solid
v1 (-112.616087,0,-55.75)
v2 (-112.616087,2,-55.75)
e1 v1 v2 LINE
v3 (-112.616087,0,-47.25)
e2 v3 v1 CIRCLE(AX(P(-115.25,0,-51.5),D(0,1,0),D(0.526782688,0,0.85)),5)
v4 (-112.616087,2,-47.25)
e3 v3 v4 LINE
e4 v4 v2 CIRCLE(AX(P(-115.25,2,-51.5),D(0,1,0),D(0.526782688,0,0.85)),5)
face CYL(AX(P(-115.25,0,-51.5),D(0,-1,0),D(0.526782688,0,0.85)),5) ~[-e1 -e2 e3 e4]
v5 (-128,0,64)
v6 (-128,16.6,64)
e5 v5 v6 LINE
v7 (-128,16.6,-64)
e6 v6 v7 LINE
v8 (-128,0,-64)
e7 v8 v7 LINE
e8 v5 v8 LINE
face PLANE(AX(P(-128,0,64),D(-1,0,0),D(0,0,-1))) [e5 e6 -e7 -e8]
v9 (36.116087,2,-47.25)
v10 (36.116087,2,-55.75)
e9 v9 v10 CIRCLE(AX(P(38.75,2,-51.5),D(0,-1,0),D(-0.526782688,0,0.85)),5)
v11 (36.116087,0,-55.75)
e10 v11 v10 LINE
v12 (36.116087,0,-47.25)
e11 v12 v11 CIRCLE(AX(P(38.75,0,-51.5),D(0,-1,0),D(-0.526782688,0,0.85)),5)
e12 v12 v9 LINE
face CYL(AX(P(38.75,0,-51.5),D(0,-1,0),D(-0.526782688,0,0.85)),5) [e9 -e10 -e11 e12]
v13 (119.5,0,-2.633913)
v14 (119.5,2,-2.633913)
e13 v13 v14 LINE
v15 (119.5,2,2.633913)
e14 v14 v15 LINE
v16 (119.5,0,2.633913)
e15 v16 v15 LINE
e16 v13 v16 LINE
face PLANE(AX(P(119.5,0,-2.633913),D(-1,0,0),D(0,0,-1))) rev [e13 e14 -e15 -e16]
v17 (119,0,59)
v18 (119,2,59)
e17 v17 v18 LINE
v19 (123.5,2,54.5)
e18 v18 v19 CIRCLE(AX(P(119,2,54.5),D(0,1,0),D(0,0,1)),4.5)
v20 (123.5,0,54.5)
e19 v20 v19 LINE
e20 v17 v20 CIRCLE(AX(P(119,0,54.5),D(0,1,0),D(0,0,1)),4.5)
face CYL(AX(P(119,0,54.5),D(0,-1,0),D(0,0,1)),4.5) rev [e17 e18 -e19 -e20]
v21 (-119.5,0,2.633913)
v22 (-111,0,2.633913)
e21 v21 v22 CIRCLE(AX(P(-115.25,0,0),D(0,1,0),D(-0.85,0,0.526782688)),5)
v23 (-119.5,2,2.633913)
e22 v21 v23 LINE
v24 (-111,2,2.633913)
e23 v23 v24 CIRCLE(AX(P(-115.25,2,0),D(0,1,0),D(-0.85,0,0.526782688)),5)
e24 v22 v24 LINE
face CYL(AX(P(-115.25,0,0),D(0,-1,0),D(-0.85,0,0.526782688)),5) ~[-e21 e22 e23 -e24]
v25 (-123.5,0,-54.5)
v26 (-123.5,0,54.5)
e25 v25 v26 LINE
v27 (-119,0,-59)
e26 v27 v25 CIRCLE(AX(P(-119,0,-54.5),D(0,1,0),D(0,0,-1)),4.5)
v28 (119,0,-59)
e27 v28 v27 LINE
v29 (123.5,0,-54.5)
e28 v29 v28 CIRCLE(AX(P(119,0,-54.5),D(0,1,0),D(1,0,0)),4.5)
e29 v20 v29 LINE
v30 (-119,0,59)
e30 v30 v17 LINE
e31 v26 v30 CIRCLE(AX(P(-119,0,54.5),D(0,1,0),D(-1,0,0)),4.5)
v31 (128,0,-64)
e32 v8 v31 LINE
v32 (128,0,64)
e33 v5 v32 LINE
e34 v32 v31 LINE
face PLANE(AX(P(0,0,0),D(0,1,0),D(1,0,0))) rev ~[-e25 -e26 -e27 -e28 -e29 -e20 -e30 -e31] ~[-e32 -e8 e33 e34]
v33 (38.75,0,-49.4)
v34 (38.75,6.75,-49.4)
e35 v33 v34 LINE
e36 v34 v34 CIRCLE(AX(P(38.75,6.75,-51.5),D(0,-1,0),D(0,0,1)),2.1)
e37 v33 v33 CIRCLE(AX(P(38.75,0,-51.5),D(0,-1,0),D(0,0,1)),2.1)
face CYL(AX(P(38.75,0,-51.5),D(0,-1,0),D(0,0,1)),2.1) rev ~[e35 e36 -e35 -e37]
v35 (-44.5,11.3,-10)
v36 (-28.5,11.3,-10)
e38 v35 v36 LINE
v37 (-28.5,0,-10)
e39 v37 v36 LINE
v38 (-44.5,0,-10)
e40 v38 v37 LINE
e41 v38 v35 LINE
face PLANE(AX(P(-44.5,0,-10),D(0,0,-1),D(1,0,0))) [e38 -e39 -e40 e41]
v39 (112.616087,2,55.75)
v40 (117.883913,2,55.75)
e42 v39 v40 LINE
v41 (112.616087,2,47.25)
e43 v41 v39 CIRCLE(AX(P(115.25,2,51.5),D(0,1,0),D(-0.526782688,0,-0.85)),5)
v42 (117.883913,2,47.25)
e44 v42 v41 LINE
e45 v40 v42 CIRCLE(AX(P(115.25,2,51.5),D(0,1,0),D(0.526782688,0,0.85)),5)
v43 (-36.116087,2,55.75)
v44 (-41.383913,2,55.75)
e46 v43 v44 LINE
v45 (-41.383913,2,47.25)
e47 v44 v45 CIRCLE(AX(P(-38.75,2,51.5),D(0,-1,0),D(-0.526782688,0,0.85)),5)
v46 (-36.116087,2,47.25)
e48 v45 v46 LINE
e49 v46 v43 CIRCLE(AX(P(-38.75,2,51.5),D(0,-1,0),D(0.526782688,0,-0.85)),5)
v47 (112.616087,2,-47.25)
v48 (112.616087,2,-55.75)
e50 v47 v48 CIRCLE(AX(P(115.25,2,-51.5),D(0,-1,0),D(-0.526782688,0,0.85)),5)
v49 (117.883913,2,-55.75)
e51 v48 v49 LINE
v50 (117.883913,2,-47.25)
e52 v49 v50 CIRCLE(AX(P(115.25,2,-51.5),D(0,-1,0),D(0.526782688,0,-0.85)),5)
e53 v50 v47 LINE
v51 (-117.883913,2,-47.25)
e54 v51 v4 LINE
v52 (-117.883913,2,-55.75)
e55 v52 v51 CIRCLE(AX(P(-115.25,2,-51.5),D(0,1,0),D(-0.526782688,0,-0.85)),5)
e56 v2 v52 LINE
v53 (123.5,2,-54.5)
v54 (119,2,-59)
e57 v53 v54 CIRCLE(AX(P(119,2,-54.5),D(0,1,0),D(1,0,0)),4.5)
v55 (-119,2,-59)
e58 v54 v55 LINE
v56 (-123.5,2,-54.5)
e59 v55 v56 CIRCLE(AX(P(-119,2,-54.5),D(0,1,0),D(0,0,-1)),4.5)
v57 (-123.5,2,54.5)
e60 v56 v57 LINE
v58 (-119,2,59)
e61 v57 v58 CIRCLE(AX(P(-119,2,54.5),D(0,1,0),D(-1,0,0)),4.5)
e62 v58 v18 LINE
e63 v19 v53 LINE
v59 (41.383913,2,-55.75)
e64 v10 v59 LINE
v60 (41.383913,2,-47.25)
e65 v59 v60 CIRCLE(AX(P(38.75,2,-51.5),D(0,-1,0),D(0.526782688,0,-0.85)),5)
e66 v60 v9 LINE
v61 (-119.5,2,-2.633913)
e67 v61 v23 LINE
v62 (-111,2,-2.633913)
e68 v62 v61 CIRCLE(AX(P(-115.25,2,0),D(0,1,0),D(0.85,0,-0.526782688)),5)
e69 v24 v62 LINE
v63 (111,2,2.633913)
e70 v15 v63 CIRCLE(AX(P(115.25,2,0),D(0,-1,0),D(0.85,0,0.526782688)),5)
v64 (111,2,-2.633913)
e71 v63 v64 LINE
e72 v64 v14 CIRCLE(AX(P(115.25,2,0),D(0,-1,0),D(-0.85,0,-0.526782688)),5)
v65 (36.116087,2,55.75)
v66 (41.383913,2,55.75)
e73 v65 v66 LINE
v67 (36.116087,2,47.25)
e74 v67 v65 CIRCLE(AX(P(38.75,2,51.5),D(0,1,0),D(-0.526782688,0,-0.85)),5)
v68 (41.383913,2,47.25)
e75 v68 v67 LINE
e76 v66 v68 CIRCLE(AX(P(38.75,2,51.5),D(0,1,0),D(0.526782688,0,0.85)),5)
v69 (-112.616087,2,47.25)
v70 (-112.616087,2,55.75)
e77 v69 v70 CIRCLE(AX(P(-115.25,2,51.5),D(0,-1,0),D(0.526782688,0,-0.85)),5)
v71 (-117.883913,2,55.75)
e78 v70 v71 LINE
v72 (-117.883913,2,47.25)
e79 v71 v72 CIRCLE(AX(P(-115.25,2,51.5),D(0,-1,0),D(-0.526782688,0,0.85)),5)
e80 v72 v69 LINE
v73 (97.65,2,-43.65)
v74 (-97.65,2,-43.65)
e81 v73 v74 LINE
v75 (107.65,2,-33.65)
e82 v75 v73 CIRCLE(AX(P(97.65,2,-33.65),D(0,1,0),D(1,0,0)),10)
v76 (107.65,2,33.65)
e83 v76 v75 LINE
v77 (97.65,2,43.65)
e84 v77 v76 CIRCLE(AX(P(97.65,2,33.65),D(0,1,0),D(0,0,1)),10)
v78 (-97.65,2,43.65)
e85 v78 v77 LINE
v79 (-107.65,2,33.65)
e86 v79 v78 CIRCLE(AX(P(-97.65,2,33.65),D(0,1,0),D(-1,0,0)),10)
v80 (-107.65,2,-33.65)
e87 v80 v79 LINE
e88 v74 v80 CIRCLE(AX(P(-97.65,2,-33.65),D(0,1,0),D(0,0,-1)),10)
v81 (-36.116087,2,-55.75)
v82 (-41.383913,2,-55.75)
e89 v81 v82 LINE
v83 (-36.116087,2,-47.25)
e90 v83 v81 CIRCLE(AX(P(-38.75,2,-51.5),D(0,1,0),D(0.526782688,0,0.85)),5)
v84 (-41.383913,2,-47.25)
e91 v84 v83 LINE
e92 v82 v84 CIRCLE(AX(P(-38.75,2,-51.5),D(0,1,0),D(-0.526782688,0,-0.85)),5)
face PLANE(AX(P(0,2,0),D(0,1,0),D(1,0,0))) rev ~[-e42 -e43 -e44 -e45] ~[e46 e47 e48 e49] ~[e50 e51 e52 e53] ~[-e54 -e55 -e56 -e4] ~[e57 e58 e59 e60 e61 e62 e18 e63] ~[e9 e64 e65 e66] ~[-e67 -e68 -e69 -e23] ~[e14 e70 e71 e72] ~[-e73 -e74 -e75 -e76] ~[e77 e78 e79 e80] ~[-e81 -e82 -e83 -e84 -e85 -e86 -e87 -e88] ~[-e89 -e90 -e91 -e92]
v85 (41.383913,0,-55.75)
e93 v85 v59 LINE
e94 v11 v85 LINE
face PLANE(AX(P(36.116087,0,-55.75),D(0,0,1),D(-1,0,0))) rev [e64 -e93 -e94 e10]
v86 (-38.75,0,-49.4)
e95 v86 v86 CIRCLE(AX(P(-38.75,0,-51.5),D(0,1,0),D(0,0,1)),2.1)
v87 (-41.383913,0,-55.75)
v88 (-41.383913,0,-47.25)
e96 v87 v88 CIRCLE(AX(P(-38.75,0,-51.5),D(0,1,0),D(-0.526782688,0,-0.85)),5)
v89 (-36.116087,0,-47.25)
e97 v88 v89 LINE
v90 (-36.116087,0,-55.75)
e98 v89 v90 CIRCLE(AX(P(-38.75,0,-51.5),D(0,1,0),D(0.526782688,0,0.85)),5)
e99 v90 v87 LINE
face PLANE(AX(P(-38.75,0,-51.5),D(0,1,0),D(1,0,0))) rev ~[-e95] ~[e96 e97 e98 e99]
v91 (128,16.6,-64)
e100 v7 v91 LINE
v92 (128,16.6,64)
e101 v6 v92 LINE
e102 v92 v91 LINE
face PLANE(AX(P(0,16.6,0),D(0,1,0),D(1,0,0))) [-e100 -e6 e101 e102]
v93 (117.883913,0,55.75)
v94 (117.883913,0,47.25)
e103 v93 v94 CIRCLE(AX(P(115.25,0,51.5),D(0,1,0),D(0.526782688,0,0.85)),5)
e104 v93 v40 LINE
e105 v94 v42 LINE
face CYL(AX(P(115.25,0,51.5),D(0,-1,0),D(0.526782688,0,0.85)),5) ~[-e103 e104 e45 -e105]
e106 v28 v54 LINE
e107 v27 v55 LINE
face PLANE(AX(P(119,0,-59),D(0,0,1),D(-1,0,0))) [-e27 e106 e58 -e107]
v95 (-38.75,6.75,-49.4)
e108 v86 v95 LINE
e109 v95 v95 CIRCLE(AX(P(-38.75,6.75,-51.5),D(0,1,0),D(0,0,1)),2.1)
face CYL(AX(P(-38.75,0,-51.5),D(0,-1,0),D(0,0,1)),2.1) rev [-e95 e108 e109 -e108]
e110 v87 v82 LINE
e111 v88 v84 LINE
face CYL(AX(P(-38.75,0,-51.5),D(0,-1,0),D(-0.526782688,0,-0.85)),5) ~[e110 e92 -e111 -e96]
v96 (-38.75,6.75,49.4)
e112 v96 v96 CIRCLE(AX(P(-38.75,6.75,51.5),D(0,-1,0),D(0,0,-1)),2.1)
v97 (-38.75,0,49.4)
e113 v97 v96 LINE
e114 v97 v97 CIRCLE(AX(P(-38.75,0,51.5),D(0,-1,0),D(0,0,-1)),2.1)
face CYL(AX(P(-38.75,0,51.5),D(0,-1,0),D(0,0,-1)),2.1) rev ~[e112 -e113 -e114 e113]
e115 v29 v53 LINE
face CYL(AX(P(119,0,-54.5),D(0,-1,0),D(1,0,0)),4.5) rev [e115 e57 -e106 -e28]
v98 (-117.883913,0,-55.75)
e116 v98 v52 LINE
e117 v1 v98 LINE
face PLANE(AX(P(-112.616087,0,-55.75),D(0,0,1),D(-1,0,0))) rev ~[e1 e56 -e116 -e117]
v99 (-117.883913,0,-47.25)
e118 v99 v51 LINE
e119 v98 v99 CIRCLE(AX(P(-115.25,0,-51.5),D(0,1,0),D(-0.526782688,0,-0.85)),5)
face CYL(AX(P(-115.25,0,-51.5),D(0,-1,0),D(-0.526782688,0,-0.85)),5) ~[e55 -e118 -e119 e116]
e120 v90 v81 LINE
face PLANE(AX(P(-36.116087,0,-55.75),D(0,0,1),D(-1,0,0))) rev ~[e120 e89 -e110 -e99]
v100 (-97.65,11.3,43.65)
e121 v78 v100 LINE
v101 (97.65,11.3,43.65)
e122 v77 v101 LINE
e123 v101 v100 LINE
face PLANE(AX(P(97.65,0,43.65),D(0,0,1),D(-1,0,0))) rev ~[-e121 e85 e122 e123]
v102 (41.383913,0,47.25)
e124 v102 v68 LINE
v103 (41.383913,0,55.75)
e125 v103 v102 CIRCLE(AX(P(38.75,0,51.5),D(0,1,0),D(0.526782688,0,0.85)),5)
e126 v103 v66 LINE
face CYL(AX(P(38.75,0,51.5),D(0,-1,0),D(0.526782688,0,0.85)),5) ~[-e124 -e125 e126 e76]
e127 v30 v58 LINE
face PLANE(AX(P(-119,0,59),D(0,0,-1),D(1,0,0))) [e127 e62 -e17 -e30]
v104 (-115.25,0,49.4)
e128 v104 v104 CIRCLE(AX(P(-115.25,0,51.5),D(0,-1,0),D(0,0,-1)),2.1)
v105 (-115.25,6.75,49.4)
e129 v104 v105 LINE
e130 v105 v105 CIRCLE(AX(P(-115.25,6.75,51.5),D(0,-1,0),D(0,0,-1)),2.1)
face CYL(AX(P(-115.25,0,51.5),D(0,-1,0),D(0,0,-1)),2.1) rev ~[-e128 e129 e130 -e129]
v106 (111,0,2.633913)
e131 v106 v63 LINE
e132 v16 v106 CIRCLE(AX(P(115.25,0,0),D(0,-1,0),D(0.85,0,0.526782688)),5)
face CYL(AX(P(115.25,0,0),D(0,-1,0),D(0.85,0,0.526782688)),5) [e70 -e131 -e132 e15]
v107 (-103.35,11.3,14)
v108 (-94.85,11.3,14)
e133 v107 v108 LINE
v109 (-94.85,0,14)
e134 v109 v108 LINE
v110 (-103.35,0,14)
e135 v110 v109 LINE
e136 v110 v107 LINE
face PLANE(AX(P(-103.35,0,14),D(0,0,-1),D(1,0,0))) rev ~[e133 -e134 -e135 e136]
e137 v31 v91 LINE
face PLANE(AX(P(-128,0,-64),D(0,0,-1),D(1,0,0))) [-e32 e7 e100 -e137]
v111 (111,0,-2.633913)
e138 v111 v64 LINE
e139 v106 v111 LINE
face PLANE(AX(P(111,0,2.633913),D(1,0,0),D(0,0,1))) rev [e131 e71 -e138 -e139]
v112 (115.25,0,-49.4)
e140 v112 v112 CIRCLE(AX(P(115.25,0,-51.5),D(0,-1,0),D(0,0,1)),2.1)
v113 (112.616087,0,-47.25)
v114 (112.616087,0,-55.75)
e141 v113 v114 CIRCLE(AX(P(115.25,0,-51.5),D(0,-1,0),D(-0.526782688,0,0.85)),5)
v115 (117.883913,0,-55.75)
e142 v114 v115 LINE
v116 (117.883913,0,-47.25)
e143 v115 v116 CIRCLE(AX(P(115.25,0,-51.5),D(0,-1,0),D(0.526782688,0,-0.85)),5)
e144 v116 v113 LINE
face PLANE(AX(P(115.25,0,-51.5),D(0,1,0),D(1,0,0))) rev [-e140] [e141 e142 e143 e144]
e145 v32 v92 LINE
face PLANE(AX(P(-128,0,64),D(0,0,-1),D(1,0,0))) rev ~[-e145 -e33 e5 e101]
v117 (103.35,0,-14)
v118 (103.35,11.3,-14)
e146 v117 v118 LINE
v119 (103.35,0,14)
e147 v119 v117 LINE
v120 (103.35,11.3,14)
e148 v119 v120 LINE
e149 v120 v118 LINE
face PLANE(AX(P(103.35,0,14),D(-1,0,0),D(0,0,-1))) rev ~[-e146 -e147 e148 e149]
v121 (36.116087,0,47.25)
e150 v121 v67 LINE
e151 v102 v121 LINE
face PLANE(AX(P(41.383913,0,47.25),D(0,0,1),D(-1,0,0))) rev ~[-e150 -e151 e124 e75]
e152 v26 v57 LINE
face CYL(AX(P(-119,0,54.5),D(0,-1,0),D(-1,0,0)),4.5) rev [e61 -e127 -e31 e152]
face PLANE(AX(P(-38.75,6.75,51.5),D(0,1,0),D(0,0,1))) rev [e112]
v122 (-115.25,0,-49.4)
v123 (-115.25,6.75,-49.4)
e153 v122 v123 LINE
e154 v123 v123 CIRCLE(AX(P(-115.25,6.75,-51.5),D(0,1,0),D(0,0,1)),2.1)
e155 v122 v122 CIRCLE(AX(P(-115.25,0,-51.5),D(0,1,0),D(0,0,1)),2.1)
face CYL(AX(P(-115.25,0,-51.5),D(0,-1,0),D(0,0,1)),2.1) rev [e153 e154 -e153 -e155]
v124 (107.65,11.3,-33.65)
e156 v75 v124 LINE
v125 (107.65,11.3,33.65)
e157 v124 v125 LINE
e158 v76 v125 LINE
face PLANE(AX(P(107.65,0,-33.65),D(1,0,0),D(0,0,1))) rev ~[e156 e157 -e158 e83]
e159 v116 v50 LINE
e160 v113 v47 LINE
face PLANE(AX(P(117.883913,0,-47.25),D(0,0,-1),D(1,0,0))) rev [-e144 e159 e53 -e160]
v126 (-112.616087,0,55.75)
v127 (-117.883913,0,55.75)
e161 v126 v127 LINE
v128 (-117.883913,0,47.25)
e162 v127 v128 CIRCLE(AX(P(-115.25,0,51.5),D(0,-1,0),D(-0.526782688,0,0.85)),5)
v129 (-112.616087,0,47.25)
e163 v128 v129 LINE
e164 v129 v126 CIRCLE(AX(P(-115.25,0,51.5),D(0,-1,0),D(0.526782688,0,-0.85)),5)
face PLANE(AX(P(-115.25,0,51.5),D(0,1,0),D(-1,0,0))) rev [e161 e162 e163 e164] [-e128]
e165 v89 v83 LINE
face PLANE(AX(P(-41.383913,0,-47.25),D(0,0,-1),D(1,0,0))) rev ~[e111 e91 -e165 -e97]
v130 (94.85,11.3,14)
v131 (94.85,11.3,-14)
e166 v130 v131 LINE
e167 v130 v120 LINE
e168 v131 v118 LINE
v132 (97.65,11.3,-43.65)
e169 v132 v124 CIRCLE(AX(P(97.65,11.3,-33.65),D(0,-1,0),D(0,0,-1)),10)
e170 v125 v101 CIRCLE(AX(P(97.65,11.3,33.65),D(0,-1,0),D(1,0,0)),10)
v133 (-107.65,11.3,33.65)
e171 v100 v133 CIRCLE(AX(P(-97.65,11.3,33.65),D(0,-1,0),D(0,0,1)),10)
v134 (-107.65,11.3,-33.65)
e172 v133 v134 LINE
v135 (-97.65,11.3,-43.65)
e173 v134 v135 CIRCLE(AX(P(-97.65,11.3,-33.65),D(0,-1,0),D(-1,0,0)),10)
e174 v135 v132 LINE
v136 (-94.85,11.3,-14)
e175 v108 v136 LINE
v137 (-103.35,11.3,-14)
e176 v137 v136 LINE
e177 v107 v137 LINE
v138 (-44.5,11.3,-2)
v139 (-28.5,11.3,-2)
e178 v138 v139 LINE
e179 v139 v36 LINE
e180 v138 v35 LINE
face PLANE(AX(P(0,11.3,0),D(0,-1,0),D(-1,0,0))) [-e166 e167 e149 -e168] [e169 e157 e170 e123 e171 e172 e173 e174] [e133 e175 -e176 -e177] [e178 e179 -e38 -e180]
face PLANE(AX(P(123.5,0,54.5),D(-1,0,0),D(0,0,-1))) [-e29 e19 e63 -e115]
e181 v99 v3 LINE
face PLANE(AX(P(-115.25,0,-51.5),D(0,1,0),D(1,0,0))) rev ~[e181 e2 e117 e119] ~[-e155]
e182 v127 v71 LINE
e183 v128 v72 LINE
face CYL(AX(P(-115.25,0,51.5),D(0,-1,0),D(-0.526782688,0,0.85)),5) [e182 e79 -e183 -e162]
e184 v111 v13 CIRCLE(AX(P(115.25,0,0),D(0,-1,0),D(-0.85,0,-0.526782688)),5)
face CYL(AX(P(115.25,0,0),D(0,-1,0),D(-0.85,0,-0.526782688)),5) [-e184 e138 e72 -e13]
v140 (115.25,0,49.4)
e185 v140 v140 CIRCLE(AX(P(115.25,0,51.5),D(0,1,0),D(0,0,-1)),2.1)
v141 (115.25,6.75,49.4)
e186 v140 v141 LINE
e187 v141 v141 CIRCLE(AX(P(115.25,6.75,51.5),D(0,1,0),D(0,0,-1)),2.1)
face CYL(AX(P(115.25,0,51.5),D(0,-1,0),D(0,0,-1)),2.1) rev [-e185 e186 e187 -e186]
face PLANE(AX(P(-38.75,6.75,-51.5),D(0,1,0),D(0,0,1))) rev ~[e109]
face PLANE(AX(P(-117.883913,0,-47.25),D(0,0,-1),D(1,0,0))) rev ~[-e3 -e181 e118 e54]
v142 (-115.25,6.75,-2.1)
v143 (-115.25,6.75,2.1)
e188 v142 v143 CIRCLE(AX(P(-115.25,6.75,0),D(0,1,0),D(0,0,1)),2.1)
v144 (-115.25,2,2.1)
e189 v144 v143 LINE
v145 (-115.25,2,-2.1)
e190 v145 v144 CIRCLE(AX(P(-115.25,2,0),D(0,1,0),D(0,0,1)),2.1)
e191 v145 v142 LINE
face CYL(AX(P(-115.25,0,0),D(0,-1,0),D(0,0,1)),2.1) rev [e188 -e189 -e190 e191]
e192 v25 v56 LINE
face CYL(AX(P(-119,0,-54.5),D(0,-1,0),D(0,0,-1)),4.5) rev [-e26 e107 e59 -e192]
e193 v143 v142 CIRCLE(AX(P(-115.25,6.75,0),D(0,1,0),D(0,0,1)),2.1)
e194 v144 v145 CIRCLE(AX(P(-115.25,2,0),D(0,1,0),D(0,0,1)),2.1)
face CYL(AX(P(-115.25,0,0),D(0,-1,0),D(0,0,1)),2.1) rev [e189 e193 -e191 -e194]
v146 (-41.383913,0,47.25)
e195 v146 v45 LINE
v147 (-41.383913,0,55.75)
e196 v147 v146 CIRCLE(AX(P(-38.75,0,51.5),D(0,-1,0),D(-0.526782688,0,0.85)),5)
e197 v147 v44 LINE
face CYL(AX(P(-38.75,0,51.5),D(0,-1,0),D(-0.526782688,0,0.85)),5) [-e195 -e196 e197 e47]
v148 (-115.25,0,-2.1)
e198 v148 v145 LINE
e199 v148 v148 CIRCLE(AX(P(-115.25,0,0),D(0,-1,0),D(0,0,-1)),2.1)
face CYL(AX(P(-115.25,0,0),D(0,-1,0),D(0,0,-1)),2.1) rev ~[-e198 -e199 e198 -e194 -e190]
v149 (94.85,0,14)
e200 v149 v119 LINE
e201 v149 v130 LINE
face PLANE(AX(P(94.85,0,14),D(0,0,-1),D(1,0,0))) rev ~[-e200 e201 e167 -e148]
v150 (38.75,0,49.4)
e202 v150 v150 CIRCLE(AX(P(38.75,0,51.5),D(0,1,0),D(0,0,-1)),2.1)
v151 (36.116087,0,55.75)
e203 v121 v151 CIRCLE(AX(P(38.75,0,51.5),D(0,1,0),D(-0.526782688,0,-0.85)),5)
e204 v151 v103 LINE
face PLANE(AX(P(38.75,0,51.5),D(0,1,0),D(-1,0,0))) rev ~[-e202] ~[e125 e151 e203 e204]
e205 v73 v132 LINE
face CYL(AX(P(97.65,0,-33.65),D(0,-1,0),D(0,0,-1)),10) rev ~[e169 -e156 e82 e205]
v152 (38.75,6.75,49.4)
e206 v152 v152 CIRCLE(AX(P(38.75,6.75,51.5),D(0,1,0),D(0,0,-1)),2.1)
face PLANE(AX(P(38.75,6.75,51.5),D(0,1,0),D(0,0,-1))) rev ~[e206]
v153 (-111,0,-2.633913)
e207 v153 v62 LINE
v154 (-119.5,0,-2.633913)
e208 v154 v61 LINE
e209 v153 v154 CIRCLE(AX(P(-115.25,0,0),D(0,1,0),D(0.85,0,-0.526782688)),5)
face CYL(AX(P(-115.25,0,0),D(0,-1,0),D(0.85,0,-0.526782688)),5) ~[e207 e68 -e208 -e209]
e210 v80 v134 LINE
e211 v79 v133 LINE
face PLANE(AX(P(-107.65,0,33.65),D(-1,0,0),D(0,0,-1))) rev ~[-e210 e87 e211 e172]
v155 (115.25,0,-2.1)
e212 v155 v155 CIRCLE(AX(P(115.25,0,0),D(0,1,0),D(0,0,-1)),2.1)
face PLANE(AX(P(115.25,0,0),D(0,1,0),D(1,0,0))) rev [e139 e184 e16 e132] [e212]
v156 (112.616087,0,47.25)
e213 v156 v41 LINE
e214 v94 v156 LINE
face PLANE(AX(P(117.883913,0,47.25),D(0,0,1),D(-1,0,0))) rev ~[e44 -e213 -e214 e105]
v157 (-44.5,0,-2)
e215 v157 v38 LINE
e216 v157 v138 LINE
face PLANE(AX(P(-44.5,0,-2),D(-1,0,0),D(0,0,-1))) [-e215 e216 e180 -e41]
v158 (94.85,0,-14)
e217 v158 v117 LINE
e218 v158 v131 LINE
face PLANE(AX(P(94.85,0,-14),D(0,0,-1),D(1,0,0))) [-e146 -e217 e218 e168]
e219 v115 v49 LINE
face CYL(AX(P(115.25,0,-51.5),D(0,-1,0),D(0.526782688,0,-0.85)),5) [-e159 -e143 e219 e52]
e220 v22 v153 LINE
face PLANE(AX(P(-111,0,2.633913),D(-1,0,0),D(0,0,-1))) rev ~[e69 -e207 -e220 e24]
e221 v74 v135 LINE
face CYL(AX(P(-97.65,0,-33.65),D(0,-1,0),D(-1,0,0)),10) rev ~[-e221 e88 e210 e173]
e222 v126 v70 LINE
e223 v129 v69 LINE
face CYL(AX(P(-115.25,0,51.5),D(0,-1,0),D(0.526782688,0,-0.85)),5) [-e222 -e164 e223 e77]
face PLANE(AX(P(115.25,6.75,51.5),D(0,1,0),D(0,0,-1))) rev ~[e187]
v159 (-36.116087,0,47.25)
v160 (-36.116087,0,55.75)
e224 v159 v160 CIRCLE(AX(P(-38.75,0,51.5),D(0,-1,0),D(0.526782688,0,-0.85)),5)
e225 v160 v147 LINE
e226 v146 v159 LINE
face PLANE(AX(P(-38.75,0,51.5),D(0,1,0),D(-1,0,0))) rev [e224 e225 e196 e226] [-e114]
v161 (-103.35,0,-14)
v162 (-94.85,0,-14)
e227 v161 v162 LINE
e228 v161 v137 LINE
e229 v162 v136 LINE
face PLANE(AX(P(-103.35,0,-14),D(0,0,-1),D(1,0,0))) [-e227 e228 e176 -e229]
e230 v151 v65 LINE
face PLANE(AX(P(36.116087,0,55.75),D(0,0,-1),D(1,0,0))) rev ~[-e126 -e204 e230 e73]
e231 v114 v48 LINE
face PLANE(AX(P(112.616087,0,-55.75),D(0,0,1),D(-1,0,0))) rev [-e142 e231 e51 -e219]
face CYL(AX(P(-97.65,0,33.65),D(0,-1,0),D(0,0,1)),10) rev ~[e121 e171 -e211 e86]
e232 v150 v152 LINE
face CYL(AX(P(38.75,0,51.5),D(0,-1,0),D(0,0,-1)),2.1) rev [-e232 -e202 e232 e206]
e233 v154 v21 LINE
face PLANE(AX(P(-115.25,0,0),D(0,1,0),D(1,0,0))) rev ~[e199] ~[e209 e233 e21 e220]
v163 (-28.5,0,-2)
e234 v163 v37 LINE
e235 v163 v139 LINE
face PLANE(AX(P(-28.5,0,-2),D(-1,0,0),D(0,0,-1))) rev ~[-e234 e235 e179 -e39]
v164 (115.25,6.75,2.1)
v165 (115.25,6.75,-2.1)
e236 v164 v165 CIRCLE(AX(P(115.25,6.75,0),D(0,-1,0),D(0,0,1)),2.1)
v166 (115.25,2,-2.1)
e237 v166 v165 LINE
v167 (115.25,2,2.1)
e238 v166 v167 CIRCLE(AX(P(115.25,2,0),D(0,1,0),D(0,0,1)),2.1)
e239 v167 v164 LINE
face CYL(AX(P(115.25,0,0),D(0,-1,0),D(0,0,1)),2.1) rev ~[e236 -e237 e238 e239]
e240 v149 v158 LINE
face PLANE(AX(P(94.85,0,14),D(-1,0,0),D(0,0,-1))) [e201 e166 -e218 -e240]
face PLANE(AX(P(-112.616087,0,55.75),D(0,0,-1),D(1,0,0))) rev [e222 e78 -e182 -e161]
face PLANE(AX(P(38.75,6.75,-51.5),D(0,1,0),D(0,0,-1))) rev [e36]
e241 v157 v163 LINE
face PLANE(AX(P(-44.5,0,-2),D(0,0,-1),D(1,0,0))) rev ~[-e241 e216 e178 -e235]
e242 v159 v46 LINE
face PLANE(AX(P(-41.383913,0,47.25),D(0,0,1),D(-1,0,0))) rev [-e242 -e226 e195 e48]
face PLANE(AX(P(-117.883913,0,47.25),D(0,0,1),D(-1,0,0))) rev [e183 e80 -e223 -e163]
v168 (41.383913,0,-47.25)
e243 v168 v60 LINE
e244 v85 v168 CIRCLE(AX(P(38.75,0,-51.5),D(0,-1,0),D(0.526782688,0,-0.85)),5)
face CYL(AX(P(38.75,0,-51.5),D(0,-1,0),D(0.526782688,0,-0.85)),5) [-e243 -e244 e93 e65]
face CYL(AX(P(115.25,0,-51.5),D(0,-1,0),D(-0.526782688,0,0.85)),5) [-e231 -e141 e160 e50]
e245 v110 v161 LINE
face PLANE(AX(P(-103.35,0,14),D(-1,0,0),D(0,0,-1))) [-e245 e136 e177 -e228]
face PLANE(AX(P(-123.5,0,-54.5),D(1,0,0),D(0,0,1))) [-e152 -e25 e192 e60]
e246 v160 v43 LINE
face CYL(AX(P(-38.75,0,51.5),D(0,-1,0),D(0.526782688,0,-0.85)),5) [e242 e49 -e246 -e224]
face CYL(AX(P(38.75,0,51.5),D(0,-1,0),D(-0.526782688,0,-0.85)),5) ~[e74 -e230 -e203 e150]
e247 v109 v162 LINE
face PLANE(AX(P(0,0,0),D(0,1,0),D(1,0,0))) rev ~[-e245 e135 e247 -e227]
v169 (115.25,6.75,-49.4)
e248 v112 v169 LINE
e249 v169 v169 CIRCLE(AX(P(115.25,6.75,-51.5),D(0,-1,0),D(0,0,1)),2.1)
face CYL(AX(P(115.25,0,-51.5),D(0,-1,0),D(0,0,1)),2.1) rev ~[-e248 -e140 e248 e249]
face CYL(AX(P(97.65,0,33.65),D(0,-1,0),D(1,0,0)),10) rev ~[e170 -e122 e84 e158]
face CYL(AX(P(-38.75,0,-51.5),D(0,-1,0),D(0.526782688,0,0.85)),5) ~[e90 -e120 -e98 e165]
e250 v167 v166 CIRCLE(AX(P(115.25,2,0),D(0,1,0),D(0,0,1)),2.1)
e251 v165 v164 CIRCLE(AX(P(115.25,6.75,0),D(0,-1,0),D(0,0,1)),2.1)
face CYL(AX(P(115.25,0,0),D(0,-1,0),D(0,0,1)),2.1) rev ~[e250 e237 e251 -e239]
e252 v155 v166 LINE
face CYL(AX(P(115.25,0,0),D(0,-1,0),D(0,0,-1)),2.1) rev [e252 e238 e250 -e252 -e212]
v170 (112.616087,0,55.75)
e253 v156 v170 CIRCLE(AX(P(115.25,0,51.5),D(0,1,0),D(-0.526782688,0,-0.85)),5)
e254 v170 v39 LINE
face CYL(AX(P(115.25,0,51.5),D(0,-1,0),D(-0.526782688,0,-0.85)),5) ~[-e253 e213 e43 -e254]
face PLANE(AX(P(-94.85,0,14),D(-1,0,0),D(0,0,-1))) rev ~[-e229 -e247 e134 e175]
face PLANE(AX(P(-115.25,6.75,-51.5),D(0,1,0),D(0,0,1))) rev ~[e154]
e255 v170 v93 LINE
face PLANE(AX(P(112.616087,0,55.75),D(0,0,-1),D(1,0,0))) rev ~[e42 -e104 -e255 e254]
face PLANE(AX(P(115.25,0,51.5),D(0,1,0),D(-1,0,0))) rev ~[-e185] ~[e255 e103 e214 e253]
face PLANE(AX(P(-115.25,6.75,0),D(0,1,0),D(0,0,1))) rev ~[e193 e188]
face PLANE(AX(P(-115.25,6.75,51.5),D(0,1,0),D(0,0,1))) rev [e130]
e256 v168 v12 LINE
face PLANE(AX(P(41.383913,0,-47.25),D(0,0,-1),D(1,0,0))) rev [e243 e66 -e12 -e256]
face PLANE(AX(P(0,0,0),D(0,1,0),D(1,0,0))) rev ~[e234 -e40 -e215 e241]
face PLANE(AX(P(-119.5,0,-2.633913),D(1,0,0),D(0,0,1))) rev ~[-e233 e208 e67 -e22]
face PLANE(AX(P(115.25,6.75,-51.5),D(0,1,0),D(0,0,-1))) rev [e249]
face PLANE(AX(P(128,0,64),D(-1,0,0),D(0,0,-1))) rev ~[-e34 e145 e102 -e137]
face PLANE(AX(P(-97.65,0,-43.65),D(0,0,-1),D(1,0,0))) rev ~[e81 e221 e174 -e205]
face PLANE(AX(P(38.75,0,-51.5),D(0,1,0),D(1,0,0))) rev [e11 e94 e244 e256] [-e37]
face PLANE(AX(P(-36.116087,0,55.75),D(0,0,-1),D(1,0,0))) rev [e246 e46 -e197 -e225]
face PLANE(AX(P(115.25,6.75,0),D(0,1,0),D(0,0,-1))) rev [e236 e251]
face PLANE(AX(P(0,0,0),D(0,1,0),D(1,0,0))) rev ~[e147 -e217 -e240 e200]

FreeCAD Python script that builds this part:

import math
import FreeCAD as App
import Part
import Sketcher
Q = App.Units.Quantity


def add_polygon(sketch, points):
    """Adds a closed chain of lines whose ends are joined by coincident constraints."""
    first, n = sketch.GeometryCount, len(points)
    for a, b in zip(points, points[1:] + points[:1]):
        sketch.addGeometry(Part.LineSegment(App.Vector(*a, 0), App.Vector(*b, 0)), False)
    for i in range(n):
        sketch.addConstraint(Sketcher.Constraint("Coincident", first + i, 2, first + (i + 1) % n, 1))

doc = App.newDocument("Part")
body = doc.addObject("PartDesign::Body", "Body")

# Sketch on XZ plane
sketch1 = doc.addObject("Sketcher::SketchObject", "Sketch")
body.addObject(sketch1)
sketch1.AttachmentSupport = (doc.XZ_Plane, [""])
sketch1.MapMode = "FlatFace"
add_polygon(sketch1, [(-128, -64), (-128, 64), (128, 64), (128, -64)])  # lines 0-3
sketch1.addConstraint(Sketcher.Constraint("Vertical", 0))
sketch1.addConstraint(Sketcher.Constraint("Horizontal", 1))
sketch1.addConstraint(Sketcher.Constraint("Vertical", 2))
sketch1.addConstraint(Sketcher.Constraint("Horizontal", 3))
sketch1.addConstraint(Sketcher.Constraint("Symmetric", 0, 2, 2, 2, -1, 1))
sketch1.addConstraint(Sketcher.Constraint("DistanceX", 1, 1, 1, 2, Q("256 mm")))
sketch1.addConstraint(Sketcher.Constraint("DistanceY", 0, 1, 0, 2, Q("128 mm")))
pad1 = doc.addObject("PartDesign::Pad", "Pad")
body.addObject(pad1)
pad1.Profile = sketch1
pad1.Length = 16.6
pad1.Reversed = True

# Sketch on XZ plane
sketch2 = doc.addObject("Sketcher::SketchObject", "Sketch001")
body.addObject(sketch2)
sketch2.AttachmentSupport = (doc.XZ_Plane, [""])
sketch2.MapMode = "FlatFace"
sketch2.addGeometry(Part.LineSegment(App.Vector(-98, 44, 0), App.Vector(98, 44, 0)), False)  # 0
sketch2.addGeometry(Part.ArcOfCircle(Part.Circle(App.Vector(98, 34, 0), App.Vector(0, 0, 1), 10), math.radians(0), math.radians(90)), False)  # 1
sketch2.addGeometry(Part.LineSegment(App.Vector(108, 34, 0), App.Vector(108, -34, 0)), False)  # 2
sketch2.addGeometry(Part.ArcOfCircle(Part.Circle(App.Vector(98, -34, 0), App.Vector(0, 0, 1), 10), math.radians(-90), math.radians(0)), False)  # 3
sketch2.addGeometry(Part.LineSegment(App.Vector(98, -44, 0), App.Vector(-98, -44, 0)), False)  # 4
sketch2.addGeometry(Part.ArcOfCircle(Part.Circle(App.Vector(-98, -34, 0), App.Vector(0, 0, 1), 10), math.radians(180), math.radians(270)), False)  # 5
sketch2.addGeometry(Part.LineSegment(App.Vector(-108, -34, 0), App.Vector(-108, 34, 0)), False)  # 6
sketch2.addGeometry(Part.ArcOfCircle(Part.Circle(App.Vector(-98, 34, 0), App.Vector(0, 0, 1), 10), math.radians(90), math.radians(180)), False)  # 7
add_polygon(sketch2, [(95, 14), (95, -14), (103, -14), (103, 14)])  # lines 8-11
add_polygon(sketch2, [(-44, -2), (-44, -10), (-28, -10), (-28, -2)])  # lines 12-15
add_polygon(sketch2, [(-103, 14), (-103, -14), (-95, -14), (-95, 14)])  # lines 16-19
sketch2.addConstraint(Sketcher.Constraint("Tangent", 0, 2, 1, 2))
sketch2.addConstraint(Sketcher.Constraint("Tangent", 1, 1, 2, 1))
sketch2.addConstraint(Sketcher.Constraint("Tangent", 2, 2, 3, 2))
sketch2.addConstraint(Sketcher.Constraint("Tangent", 3, 1, 4, 1))
sketch2.addConstraint(Sketcher.Constraint("Tangent", 4, 2, 5, 2))
sketch2.addConstraint(Sketcher.Constraint("Tangent", 5, 1, 6, 1))
sketch2.addConstraint(Sketcher.Constraint("Tangent", 6, 2, 7, 2))
sketch2.addConstraint(Sketcher.Constraint("Tangent", 7, 1, 0, 1))
sketch2.addConstraint(Sketcher.Constraint("Horizontal", 0))
sketch2.addConstraint(Sketcher.Constraint("Vertical", 2))
sketch2.addConstraint(Sketcher.Constraint("Horizontal", 4))
sketch2.addConstraint(Sketcher.Constraint("Vertical", 6))
sketch2.addConstraint(Sketcher.Constraint("Vertical", 8))
sketch2.addConstraint(Sketcher.Constraint("Horizontal", 9))
sketch2.addConstraint(Sketcher.Constraint("Vertical", 10))
sketch2.addConstraint(Sketcher.Constraint("Horizontal", 11))
sketch2.addConstraint(Sketcher.Constraint("Vertical", 12))
sketch2.addConstraint(Sketcher.Constraint("Horizontal", 13))
sketch2.addConstraint(Sketcher.Constraint("Vertical", 14))
sketch2.addConstraint(Sketcher.Constraint("Horizontal", 15))
sketch2.addConstraint(Sketcher.Constraint("Vertical", 16))
sketch2.addConstraint(Sketcher.Constraint("Horizontal", 17))
sketch2.addConstraint(Sketcher.Constraint("Vertical", 18))
sketch2.addConstraint(Sketcher.Constraint("Horizontal", 19))
sketch2.addConstraint(Sketcher.Constraint("Equal", 1, 3))
sketch2.addConstraint(Sketcher.Constraint("Equal", 3, 5))
sketch2.addConstraint(Sketcher.Constraint("Equal", 5, 7))
sketch2.addConstraint(Sketcher.Constraint("Symmetric", 1, 3, 5, 3, -1, 1))
sketch2.addConstraint(Sketcher.Constraint("Symmetric", 10, 2, 16, 2, -1, 1))
sketch2.addConstraint(Sketcher.Constraint("Symmetric", 8, 2, 18, 2, -1, 1))
sketch2.addConstraint(Sketcher.Constraint("Horizontal", 9, 2, 16, 2))
sketch2.addConstraint(Sketcher.Constraint("Radius", 1, Q("10 mm")))
sketch2.addConstraint(Sketcher.Constraint("DistanceX", 13, 1, 13, 2, Q("16 mm")))
sketch2.addConstraint(Sketcher.Constraint("DistanceY", 8, 2, 8, 1, Q("28 mm")))
sketch2.addConstraint(Sketcher.Constraint("DistanceY", 12, 2, 12, 1, Q("8 mm")))
sketch2.addConstraint(Sketcher.Constraint("DistanceX", 0, 1, 0, 2, Q("195.3 mm")))
sketch2.addConstraint(Sketcher.Constraint("DistanceX", 9, 1, 9, 2, Q("8.5 mm")))
sketch2.addConstraint(Sketcher.Constraint("DistanceY", 2, 2, 2, 1, Q("67.3 mm")))
sketch2.addConstraint(Sketcher.Constraint("DistanceY", 12, 2, -1, 1, Q("10 mm")))
sketch2.addConstraint(Sketcher.Constraint("DistanceX", 12, 2, -1, 1, Q("44.5 mm")))
sketch2.addConstraint(Sketcher.Constraint("DistanceX", 8, 2, 3, 3, Q("2.8 mm")))
pocket1 = doc.addObject("PartDesign::Pocket", "Pocket")
body.addObject(pocket1)
pocket1.Profile = sketch2
pocket1.Length = 11.3

# Sketch on XZ plane
sketch3 = doc.addObject("Sketcher::SketchObject", "Sketch002")
body.addObject(sketch3)
sketch3.AttachmentSupport = (doc.XZ_Plane, [""])
sketch3.MapMode = "FlatFace"
sketch3.addGeometry(Part.LineSegment(App.Vector(119, -59, 0), App.Vector(-119, -59, 0)), False)
sketch3.addGeometry(Part.ArcOfCircle(Part.Circle(App.Vector(-119, -54.5, 0), App.Vector(0, 0, 1), 4.5), math.radians(-180), math.radians(-90)), False)
sketch3.addGeometry(Part.LineSegment(App.Vector(-123.5, -54.5, 0), App.Vector(-123.5, 54.5, 0)), False)
sketch3.addGeometry(Part.ArcOfCircle(Part.Circle(App.Vector(-119, 54.5, 0), App.Vector(0, 0, 1), 4.5), math.radians(90), math.radians(180)), False)
sketch3.addGeometry(Part.LineSegment(App.Vector(-119, 59, 0), App.Vector(119, 59, 0)), False)
sketch3.addGeometry(Part.ArcOfCircle(Part.Circle(App.Vector(119, 54.5, 0), App.Vector(0, 0, 1), 4.5), math.radians(0), math.radians(90)), False)
sketch3.addGeometry(Part.LineSegment(App.Vector(123.5, 54.5, 0), App.Vector(123.5, -54.5, 0)), False)
sketch3.addGeometry(Part.ArcOfCircle(Part.Circle(App.Vector(119, -54.5, 0), App.Vector(0, 0, 1), 4.5), math.radians(-90), math.radians(0)), False)
sketch3.addGeometry(Part.ArcOfCircle(Part.Circle(App.Vector(-97.7, -33.6, 0), App.Vector(0, 0, 1), 10), math.radians(180), math.radians(270)), False)
sketch3.addGeometry(Part.LineSegment(App.Vector(-97.7, -43.6, 0), App.Vector(97.7, -43.6, 0)), False)
sketch3.addGeometry(Part.ArcOfCircle(Part.Circle(App.Vector(97.7, -33.6, 0), App.Vector(0, 0, 1), 10), math.radians(-90), math.radians(0)), False)
sketch3.addGeometry(Part.LineSegment(App.Vector(107.7, -33.6, 0), App.Vector(107.7, 33.6, 0)), False)
sketch3.addGeometry(Part.ArcOfCircle(Part.Circle(App.Vector(97.7, 33.6, 0), App.Vector(0, 0, 1), 10), math.radians(0), math.radians(90)), False)
sketch3.addGeometry(Part.LineSegment(App.Vector(97.7, 43.6, 0), App.Vector(-97.7, 43.6, 0)), False)
sketch3.addGeometry(Part.ArcOfCircle(Part.Circle(App.Vector(-97.7, 33.6, 0), App.Vector(0, 0, 1), 10), math.radians(90), math.radians(180)), False)
sketch3.addGeometry(Part.LineSegment(App.Vector(-107.7, 33.6, 0), App.Vector(-107.7, -33.6, 0)), False)
sketch3.addConstraint(Sketcher.Constraint("Tangent", 0, 2, 1, 2))
sketch3.addConstraint(Sketcher.Constraint("Tangent", 1, 1, 2, 1))
sketch3.addConstraint(Sketcher.Constraint("Tangent", 2, 2, 3, 2))
sketch3.addConstraint(Sketcher.Constraint("Tangent", 3, 1, 4, 1))
sketch3.addConstraint(Sketcher.Constraint("Tangent", 4, 2, 5, 2))
sketch3.addConstraint(Sketcher.Constraint("Tangent", 5, 1, 6, 1))
sketch3.addConstraint(Sketcher.Constraint("Tangent", 6, 2, 7, 2))
sketch3.addConstraint(Sketcher.Constraint("Tangent", 7, 1, 0, 1))
sketch3.addConstraint(Sketcher.Constraint("Tangent", 8, 2, 9, 1))
sketch3.addConstraint(Sketcher.Constraint("Tangent", 9, 2, 10, 1))
sketch3.addConstraint(Sketcher.Constraint("Tangent", 10, 2, 11, 1))
sketch3.addConstraint(Sketcher.Constraint("Tangent", 11, 2, 12, 1))
sketch3.addConstraint(Sketcher.Constraint("Tangent", 12, 2, 13, 1))
sketch3.addConstraint(Sketcher.Constraint("Tangent", 13, 2, 14, 1))
sketch3.addConstraint(Sketcher.Constraint("Tangent", 14, 2, 15, 1))
sketch3.addConstraint(Sketcher.Constraint("Tangent", 15, 2, 8, 1))
sketch3.addConstraint(Sketcher.Constraint("Horizontal", 0))
sketch3.addConstraint(Sketcher.Constraint("Vertical", 2))
sketch3.addConstraint(Sketcher.Constraint("Horizontal", 4))
sketch3.addConstraint(Sketcher.Constraint("Vertical", 6))
sketch3.addConstraint(Sketcher.Constraint("Horizontal", 9))
sketch3.addConstraint(Sketcher.Constraint("Vertical", 11))
sketch3.addConstraint(Sketcher.Constraint("Horizontal", 13))
sketch3.addConstraint(Sketcher.Constraint("Vertical", 15))
sketch3.addConstraint(Sketcher.Constraint("Equal", 1, 3))
sketch3.addConstraint(Sketcher.Constraint("Equal", 3, 5))
sketch3.addConstraint(Sketcher.Constraint("Equal", 5, 7))
sketch3.addConstraint(Sketcher.Constraint("Equal", 8, 10))
sketch3.addConstraint(Sketcher.Constraint("Equal", 10, 12))
sketch3.addConstraint(Sketcher.Constraint("Equal", 12, 14))
sketch3.addConstraint(Sketcher.Constraint("Symmetric", 1, 3, 5, 3, -1, 1))
sketch3.addConstraint(Sketcher.Constraint("Symmetric", 8, 3, 12, 3, -1, 1))
sketch3.addConstraint(Sketcher.Constraint("Radius", 8, Q("10 mm")))
sketch3.addConstraint(Sketcher.Constraint("Radius", 1, Q("4.5 mm")))
sketch3.addConstraint(Sketcher.Constraint("DistanceX", 0, 2, 0, 1, Q("238 mm")))
sketch3.addConstraint(Sketcher.Constraint("DistanceY", 2, 1, 2, 2, Q("109 mm")))
sketch3.addConstraint(Sketcher.Constraint("DistanceX", 9, 1, 9, 2, Q("195.3 mm")))
sketch3.addConstraint(Sketcher.Constraint("DistanceY", 11, 1, 11, 2, Q("67.3 mm")))
pocket2 = doc.addObject("PartDesign::Pocket", "Pocket001")
body.addObject(pocket2)
pocket2.Profile = sketch3
pocket2.Length = 2

# Sketch on XZ plane
sketch4 = doc.addObject("Sketcher::SketchObject", "Sketch003")
body.addObject(sketch4)
sketch4.AttachmentSupport = (doc.XZ_Plane, [""])
sketch4.MapMode = "FlatFace"
sketch4.addGeometry(Part.LineSegment(App.Vector(-111, 3, 0), App.Vector(-111, -3, 0)), False)
sketch4.addGeometry(Part.ArcOfCircle(Part.Circle(App.Vector(-115, 0, 0), App.Vector(0, 0, 1), 5), math.radians(-148), math.radians(-32)), False)
sketch4.addGeometry(Part.LineSegment(App.Vector(-120, -3, 0), App.Vector(-120, 3, 0)), False)
sketch4.addGeometry(Part.ArcOfCircle(Part.Circle(App.Vector(-115, 0, 0), App.Vector(0, 0, 1), 5), math.radians(32), math.radians(148)), False)
sketch4.addGeometry(Part.LineSegment(App.Vector(-118, -47, 0), App.Vector(-113, -47, 0)), False)
sketch4.addGeometry(Part.ArcOfCircle(Part.Circle(App.Vector(-115, -52, 0), App.Vector(0, 0, 1), 5), math.radians(-58), math.radians(58)), False)
sketch4.addGeometry(Part.LineSegment(App.Vector(-113, -56, 0), App.Vector(-118, -56, 0)), False)
sketch4.addGeometry(Part.ArcOfCircle(Part.Circle(App.Vector(-115, -52, 0), App.Vector(0, 0, 1), 5), math.radians(122), math.radians(238)), False)
sketch4.addGeometry(Part.LineSegment(App.Vector(-41, -47, 0), App.Vector(-36, -47, 0)), False)
sketch4.addGeometry(Part.ArcOfCircle(Part.Circle(App.Vector(-39, -52, 0), App.Vector(0, 0, 1), 5), math.radians(-58), math.radians(58)), False)
sketch4.addGeometry(Part.LineSegment(App.Vector(-36, -56, 0), App.Vector(-41, -56, 0)), False)
sketch4.addGeometry(Part.ArcOfCircle(Part.Circle(App.Vector(-39, -52, 0), App.Vector(0, 0, 1), 5), math.radians(122), math.radians(238)), False)
sketch4.addConstraint(Sketcher.Constraint("Coincident", 0, 2, 1, 2))
sketch4.addConstraint(Sketcher.Constraint("Coincident", 1, 1, 2, 1))
sketch4.addConstraint(Sketcher.Constraint("Coincident", 2, 2, 3, 2))
sketch4.addConstraint(Sketcher.Constraint("Coincident", 3, 1, 0, 1))
sketch4.addConstraint(Sketcher.Constraint("Coincident", 4, 2, 5, 2))
sketch4.addConstraint(Sketcher.Constraint("Coincident", 5, 1, 6, 1))
sketch4.addConstraint(Sketcher.Constraint("Coincident", 6, 2, 7, 2))
sketch4.addConstraint(Sketcher.Constraint("Coincident", 7, 1, 4, 1))
sketch4.addConstraint(Sketcher.Constraint("Coincident", 8, 2, 9, 2))
sketch4.addConstraint(Sketcher.Constraint("Coincident", 9, 1, 10, 1))
sketch4.addConstraint(Sketcher.Constraint("Coincident", 10, 2, 11, 2))
sketch4.addConstraint(Sketcher.Constraint("Coincident", 11, 1, 8, 1))
sketch4.addConstraint(Sketcher.Constraint("Vertical", 0))
sketch4.addConstraint(Sketcher.Constraint("Vertical", 2))
sketch4.addConstraint(Sketcher.Constraint("Horizontal", 4))
sketch4.addConstraint(Sketcher.Constraint("Horizontal", 6))
sketch4.addConstraint(Sketcher.Constraint("Horizontal", 8))
sketch4.addConstraint(Sketcher.Constraint("Horizontal", 10))
sketch4.addConstraint(Sketcher.Constraint("Coincident", 3, 3, 1, 3))
sketch4.addConstraint(Sketcher.Constraint("Coincident", 7, 3, 5, 3))
sketch4.addConstraint(Sketcher.Constraint("Coincident", 11, 3, 9, 3))
sketch4.addConstraint(Sketcher.Constraint("Equal", 1, 3))
sketch4.addConstraint(Sketcher.Constraint("Equal", 3, 5))
sketch4.addConstraint(Sketcher.Constraint("Equal", 5, 7))
sketch4.addConstraint(Sketcher.Constraint("Equal", 7, 9))
sketch4.addConstraint(Sketcher.Constraint("Equal", 9, 11))
sketch4.addConstraint(Sketcher.Constraint("PointOnObject", 1, 3, -1))
sketch4.addConstraint(Sketcher.Constraint("Horizontal", 7, 3, 9, 3))
sketch4.addConstraint(Sketcher.Constraint("Horizontal", 0, 2, 1, 1))
sketch4.addConstraint(Sketcher.Constraint("Horizontal", 7, 1, 8, 2))
sketch4.addConstraint(Sketcher.Constraint("Horizontal", 6, 2, 9, 1))
sketch4.addConstraint(Sketcher.Constraint("Vertical", 3, 3, 5, 3))
sketch4.addConstraint(Sketcher.Constraint("Vertical", 4, 2, 5, 1))
sketch4.addConstraint(Sketcher.Constraint("Equal", 10, 0))
sketch4.addConstraint(Sketcher.Constraint("Radius", 1, Q("5 mm")))
sketch4.addConstraint(Sketcher.Constraint("DistanceX", 0, 2, -1, 1, Q("111 mm")))
sketch4.addConstraint(Sketcher.Constraint("DistanceY", 5, 3, -1, 1, Q("51.5 mm")))
sketch4.addConstraint(Sketcher.Constraint("DistanceX", 1, 1, -1, 1, Q("119.5 mm")))
sketch4.addConstraint(Sketcher.Constraint("DistanceX", 5, 3, 9, 3, Q("76.5 mm")))
pad2 = doc.addObject("PartDesign::Pad", "Pad001")
body.addObject(pad2)
pad2.Profile = sketch4
pad2.Length = 2
pad2.Reversed = True

# Sketch on XZ plane
sketch5 = doc.addObject("Sketcher::SketchObject", "Sketch004")
body.addObject(sketch5)
sketch5.AttachmentSupport = (doc.XZ_Plane, [""])
sketch5.MapMode = "FlatFace"
sketch5.addGeometry(Part.Circle(App.Vector(-115.2, 0, 0), App.Vector(0, 0, 1), 2.1), False)
sketch5.addGeometry(Part.Circle(App.Vector(-115.2, -51.5, 0), App.Vector(0, 0, 1), 2.1), False)
sketch5.addGeometry(Part.Circle(App.Vector(-38.8, -51.5, 0), App.Vector(0, 0, 1), 2.1), False)
sketch5.addConstraint(Sketcher.Constraint("Equal", 0, 1))
sketch5.addConstraint(Sketcher.Constraint("Equal", 1, 2))
sketch5.addConstraint(Sketcher.Constraint("PointOnObject", 0, 3, -1))
sketch5.addConstraint(Sketcher.Constraint("Horizontal", 1, 3, 2, 3))
sketch5.addConstraint(Sketcher.Constraint("Vertical", 0, 3, 1, 3))
sketch5.addConstraint(Sketcher.Constraint("Diameter", 0, Q("4.2 mm")))
sketch5.addConstraint(Sketcher.Constraint("DistanceY", 1, 3, -1, 1, Q("51.5 mm")))
sketch5.addConstraint(Sketcher.Constraint("DistanceX", 1, 3, 2, 3, Q("76.5 mm")))
sketch5.addConstraint(Sketcher.Constraint("DistanceX", 0, 3, -1, 1, Q("115.25 mm")))
pocket3 = doc.addObject("PartDesign::Pocket", "Pocket002")
body.addObject(pocket3)
pocket3.Profile = sketch5
pocket3.Length = 6.75
doc.recompute()

mirrored = doc.addObject("PartDesign::Mirrored", "Mirrored")
body.addObject(mirrored)
mirrored.Originals = [pad2, pocket3]
mirrored.MirrorPlane = (doc.XY_Plane, [""])
body.Tip = mirrored
doc.recompute()

mirrored2 = doc.addObject("PartDesign::Mirrored", "Mirrored001")
body.addObject(mirrored2)
mirrored2.Originals = [pad2, pocket3]
mirrored2.MirrorPlane = (doc.YZ_Plane, [""])
body.Tip = mirrored2

# Sketch on XZ plane
sketch6 = doc.addObject("Sketcher::SketchObject", "Sketch005")
body.addObject(sketch6)
sketch6.AttachmentSupport = (doc.XZ_Plane, [""])
sketch6.MapMode = "FlatFace"
sketch6.addGeometry(Part.LineSegment(App.Vector(111, -3, 0), App.Vector(111, 3, 0)), False)
sketch6.addGeometry(Part.ArcOfCircle(Part.Circle(App.Vector(115, 0, 0), App.Vector(0, 0, 1), 5), math.radians(32), math.radians(148)), False)
sketch6.addGeometry(Part.LineSegment(App.Vector(120, 3, 0), App.Vector(120, -3, 0)), False)
sketch6.addGeometry(Part.ArcOfCircle(Part.Circle(App.Vector(115, 0, 0), App.Vector(0, 0, 1), 5), math.radians(-148), math.radians(-32)), False)
sketch6.addGeometry(Part.LineSegment(App.Vector(118, 47, 0), App.Vector(113, 47, 0)), False)
sketch6.addGeometry(Part.ArcOfCircle(Part.Circle(App.Vector(115, 52, 0), App.Vector(0, 0, 1), 5), math.radians(122), math.radians(238)), False)
sketch6.addGeometry(Part.LineSegment(App.Vector(113, 56, 0), App.Vector(118, 56, 0)), False)
sketch6.addGeometry(Part.ArcOfCircle(Part.Circle(App.Vector(115, 52, 0), App.Vector(0, 0, 1), 5), math.radians(-58), math.radians(58)), False)
sketch6.addGeometry(Part.LineSegment(App.Vector(41, 47, 0), App.Vector(36, 47, 0)), False)
sketch6.addGeometry(Part.ArcOfCircle(Part.Circle(App.Vector(39, 52, 0), App.Vector(0, 0, 1), 5), math.radians(122), math.radians(238)), False)
sketch6.addGeometry(Part.LineSegment(App.Vector(36, 56, 0), App.Vector(41, 56, 0)), False)
sketch6.addGeometry(Part.ArcOfCircle(Part.Circle(App.Vector(39, 52, 0), App.Vector(0, 0, 1), 5), math.radians(-58), math.radians(58)), False)
sketch6.addConstraint(Sketcher.Constraint("Coincident", 0, 2, 1, 2))
sketch6.addConstraint(Sketcher.Constraint("Coincident", 1, 1, 2, 1))
sketch6.addConstraint(Sketcher.Constraint("Coincident", 2, 2, 3, 2))
sketch6.addConstraint(Sketcher.Constraint("Coincident", 3, 1, 0, 1))
sketch6.addConstraint(Sketcher.Constraint("Coincident", 4, 2, 5, 2))
sketch6.addConstraint(Sketcher.Constraint("Coincident", 5, 1, 6, 1))
sketch6.addConstraint(Sketcher.Constraint("Coincident", 6, 2, 7, 2))
sketch6.addConstraint(Sketcher.Constraint("Coincident", 7, 1, 4, 1))
sketch6.addConstraint(Sketcher.Constraint("Coincident", 8, 2, 9, 2))
sketch6.addConstraint(Sketcher.Constraint("Coincident", 9, 1, 10, 1))
sketch6.addConstraint(Sketcher.Constraint("Coincident", 10, 2, 11, 2))
sketch6.addConstraint(Sketcher.Constraint("Coincident", 11, 1, 8, 1))
sketch6.addConstraint(Sketcher.Constraint("Vertical", 0))
sketch6.addConstraint(Sketcher.Constraint("Vertical", 2))
sketch6.addConstraint(Sketcher.Constraint("Horizontal", 4))
sketch6.addConstraint(Sketcher.Constraint("Horizontal", 6))
sketch6.addConstraint(Sketcher.Constraint("Horizontal", 8))
sketch6.addConstraint(Sketcher.Constraint("Horizontal", 10))
sketch6.addConstraint(Sketcher.Constraint("Coincident", 3, 3, 1, 3))
sketch6.addConstraint(Sketcher.Constraint("Coincident", 7, 3, 5, 3))
sketch6.addConstraint(Sketcher.Constraint("Coincident", 11, 3, 9, 3))
sketch6.addConstraint(Sketcher.Constraint("Equal", 1, 3))
sketch6.addConstraint(Sketcher.Constraint("Equal", 3, 5))
sketch6.addConstraint(Sketcher.Constraint("Equal", 5, 7))
sketch6.addConstraint(Sketcher.Constraint("Equal", 7, 9))
sketch6.addConstraint(Sketcher.Constraint("Equal", 9, 11))
sketch6.addConstraint(Sketcher.Constraint("PointOnObject", 1, 3, -1))
sketch6.addConstraint(Sketcher.Constraint("Horizontal", 7, 3, 9, 3))
sketch6.addConstraint(Sketcher.Constraint("Horizontal", 0, 2, 1, 1))
sketch6.addConstraint(Sketcher.Constraint("Horizontal", 7, 1, 8, 2))
sketch6.addConstraint(Sketcher.Constraint("Horizontal", 6, 2, 9, 1))
sketch6.addConstraint(Sketcher.Constraint("Vertical", 3, 3, 5, 3))
sketch6.addConstraint(Sketcher.Constraint("Vertical", 4, 2, 5, 1))
sketch6.addConstraint(Sketcher.Constraint("Equal", 10, 0))
sketch6.addConstraint(Sketcher.Constraint("Radius", 1, Q("5 mm")))
sketch6.addConstraint(Sketcher.Constraint("DistanceX", -1, 1, 0, 2, Q("111 mm")))
sketch6.addConstraint(Sketcher.Constraint("DistanceY", -1, 1, 5, 3, Q("51.5 mm")))
sketch6.addConstraint(Sketcher.Constraint("DistanceX", -1, 1, 1, 1, Q("119.5 mm")))
sketch6.addConstraint(Sketcher.Constraint("DistanceX", 9, 3, 5, 3, Q("76.5 mm")))
pad3 = doc.addObject("PartDesign::Pad", "Pad002")
body.addObject(pad3)
pad3.Profile = sketch6
pad3.Length = 2
pad3.Reversed = True

# Sketch on XZ plane
sketch7 = doc.addObject("Sketcher::SketchObject", "Sketch006")
body.addObject(sketch7)
sketch7.AttachmentSupport = (doc.XZ_Plane, [""])
sketch7.MapMode = "FlatFace"
sketch7.addGeometry(Part.Circle(App.Vector(115.2, 0, 0), App.Vector(0, 0, 1), 2.1), False)
sketch7.addGeometry(Part.Circle(App.Vector(115.2, 51.5, 0), App.Vector(0, 0, 1), 2.1), False)
sketch7.addGeometry(Part.Circle(App.Vector(38.8, 51.5, 0), App.Vector(0, 0, 1), 2.1), False)
sketch7.addConstraint(Sketcher.Constraint("Equal", 0, 1))
sketch7.addConstraint(Sketcher.Constraint("Equal", 1, 2))
sketch7.addConstraint(Sketcher.Constraint("PointOnObject", 0, 3, -1))
sketch7.addConstraint(Sketcher.Constraint("Horizontal", 1, 3, 2, 3))
sketch7.addConstraint(Sketcher.Constraint("Vertical", 0, 3, 1, 3))
sketch7.addConstraint(Sketcher.Constraint("Diameter", 0, Q("4.2 mm")))
sketch7.addConstraint(Sketcher.Constraint("DistanceY", -1, 1, 1, 3, Q("51.5 mm")))
sketch7.addConstraint(Sketcher.Constraint("DistanceX", 2, 3, 1, 3, Q("76.5 mm")))
sketch7.addConstraint(Sketcher.Constraint("DistanceX", -1, 1, 0, 3, Q("115.25 mm")))
pocket4 = doc.addObject("PartDesign::Pocket", "Pocket003")
body.addObject(pocket4)
pocket4.Profile = sketch7
pocket4.Length = 6.75

doc.recompute()
